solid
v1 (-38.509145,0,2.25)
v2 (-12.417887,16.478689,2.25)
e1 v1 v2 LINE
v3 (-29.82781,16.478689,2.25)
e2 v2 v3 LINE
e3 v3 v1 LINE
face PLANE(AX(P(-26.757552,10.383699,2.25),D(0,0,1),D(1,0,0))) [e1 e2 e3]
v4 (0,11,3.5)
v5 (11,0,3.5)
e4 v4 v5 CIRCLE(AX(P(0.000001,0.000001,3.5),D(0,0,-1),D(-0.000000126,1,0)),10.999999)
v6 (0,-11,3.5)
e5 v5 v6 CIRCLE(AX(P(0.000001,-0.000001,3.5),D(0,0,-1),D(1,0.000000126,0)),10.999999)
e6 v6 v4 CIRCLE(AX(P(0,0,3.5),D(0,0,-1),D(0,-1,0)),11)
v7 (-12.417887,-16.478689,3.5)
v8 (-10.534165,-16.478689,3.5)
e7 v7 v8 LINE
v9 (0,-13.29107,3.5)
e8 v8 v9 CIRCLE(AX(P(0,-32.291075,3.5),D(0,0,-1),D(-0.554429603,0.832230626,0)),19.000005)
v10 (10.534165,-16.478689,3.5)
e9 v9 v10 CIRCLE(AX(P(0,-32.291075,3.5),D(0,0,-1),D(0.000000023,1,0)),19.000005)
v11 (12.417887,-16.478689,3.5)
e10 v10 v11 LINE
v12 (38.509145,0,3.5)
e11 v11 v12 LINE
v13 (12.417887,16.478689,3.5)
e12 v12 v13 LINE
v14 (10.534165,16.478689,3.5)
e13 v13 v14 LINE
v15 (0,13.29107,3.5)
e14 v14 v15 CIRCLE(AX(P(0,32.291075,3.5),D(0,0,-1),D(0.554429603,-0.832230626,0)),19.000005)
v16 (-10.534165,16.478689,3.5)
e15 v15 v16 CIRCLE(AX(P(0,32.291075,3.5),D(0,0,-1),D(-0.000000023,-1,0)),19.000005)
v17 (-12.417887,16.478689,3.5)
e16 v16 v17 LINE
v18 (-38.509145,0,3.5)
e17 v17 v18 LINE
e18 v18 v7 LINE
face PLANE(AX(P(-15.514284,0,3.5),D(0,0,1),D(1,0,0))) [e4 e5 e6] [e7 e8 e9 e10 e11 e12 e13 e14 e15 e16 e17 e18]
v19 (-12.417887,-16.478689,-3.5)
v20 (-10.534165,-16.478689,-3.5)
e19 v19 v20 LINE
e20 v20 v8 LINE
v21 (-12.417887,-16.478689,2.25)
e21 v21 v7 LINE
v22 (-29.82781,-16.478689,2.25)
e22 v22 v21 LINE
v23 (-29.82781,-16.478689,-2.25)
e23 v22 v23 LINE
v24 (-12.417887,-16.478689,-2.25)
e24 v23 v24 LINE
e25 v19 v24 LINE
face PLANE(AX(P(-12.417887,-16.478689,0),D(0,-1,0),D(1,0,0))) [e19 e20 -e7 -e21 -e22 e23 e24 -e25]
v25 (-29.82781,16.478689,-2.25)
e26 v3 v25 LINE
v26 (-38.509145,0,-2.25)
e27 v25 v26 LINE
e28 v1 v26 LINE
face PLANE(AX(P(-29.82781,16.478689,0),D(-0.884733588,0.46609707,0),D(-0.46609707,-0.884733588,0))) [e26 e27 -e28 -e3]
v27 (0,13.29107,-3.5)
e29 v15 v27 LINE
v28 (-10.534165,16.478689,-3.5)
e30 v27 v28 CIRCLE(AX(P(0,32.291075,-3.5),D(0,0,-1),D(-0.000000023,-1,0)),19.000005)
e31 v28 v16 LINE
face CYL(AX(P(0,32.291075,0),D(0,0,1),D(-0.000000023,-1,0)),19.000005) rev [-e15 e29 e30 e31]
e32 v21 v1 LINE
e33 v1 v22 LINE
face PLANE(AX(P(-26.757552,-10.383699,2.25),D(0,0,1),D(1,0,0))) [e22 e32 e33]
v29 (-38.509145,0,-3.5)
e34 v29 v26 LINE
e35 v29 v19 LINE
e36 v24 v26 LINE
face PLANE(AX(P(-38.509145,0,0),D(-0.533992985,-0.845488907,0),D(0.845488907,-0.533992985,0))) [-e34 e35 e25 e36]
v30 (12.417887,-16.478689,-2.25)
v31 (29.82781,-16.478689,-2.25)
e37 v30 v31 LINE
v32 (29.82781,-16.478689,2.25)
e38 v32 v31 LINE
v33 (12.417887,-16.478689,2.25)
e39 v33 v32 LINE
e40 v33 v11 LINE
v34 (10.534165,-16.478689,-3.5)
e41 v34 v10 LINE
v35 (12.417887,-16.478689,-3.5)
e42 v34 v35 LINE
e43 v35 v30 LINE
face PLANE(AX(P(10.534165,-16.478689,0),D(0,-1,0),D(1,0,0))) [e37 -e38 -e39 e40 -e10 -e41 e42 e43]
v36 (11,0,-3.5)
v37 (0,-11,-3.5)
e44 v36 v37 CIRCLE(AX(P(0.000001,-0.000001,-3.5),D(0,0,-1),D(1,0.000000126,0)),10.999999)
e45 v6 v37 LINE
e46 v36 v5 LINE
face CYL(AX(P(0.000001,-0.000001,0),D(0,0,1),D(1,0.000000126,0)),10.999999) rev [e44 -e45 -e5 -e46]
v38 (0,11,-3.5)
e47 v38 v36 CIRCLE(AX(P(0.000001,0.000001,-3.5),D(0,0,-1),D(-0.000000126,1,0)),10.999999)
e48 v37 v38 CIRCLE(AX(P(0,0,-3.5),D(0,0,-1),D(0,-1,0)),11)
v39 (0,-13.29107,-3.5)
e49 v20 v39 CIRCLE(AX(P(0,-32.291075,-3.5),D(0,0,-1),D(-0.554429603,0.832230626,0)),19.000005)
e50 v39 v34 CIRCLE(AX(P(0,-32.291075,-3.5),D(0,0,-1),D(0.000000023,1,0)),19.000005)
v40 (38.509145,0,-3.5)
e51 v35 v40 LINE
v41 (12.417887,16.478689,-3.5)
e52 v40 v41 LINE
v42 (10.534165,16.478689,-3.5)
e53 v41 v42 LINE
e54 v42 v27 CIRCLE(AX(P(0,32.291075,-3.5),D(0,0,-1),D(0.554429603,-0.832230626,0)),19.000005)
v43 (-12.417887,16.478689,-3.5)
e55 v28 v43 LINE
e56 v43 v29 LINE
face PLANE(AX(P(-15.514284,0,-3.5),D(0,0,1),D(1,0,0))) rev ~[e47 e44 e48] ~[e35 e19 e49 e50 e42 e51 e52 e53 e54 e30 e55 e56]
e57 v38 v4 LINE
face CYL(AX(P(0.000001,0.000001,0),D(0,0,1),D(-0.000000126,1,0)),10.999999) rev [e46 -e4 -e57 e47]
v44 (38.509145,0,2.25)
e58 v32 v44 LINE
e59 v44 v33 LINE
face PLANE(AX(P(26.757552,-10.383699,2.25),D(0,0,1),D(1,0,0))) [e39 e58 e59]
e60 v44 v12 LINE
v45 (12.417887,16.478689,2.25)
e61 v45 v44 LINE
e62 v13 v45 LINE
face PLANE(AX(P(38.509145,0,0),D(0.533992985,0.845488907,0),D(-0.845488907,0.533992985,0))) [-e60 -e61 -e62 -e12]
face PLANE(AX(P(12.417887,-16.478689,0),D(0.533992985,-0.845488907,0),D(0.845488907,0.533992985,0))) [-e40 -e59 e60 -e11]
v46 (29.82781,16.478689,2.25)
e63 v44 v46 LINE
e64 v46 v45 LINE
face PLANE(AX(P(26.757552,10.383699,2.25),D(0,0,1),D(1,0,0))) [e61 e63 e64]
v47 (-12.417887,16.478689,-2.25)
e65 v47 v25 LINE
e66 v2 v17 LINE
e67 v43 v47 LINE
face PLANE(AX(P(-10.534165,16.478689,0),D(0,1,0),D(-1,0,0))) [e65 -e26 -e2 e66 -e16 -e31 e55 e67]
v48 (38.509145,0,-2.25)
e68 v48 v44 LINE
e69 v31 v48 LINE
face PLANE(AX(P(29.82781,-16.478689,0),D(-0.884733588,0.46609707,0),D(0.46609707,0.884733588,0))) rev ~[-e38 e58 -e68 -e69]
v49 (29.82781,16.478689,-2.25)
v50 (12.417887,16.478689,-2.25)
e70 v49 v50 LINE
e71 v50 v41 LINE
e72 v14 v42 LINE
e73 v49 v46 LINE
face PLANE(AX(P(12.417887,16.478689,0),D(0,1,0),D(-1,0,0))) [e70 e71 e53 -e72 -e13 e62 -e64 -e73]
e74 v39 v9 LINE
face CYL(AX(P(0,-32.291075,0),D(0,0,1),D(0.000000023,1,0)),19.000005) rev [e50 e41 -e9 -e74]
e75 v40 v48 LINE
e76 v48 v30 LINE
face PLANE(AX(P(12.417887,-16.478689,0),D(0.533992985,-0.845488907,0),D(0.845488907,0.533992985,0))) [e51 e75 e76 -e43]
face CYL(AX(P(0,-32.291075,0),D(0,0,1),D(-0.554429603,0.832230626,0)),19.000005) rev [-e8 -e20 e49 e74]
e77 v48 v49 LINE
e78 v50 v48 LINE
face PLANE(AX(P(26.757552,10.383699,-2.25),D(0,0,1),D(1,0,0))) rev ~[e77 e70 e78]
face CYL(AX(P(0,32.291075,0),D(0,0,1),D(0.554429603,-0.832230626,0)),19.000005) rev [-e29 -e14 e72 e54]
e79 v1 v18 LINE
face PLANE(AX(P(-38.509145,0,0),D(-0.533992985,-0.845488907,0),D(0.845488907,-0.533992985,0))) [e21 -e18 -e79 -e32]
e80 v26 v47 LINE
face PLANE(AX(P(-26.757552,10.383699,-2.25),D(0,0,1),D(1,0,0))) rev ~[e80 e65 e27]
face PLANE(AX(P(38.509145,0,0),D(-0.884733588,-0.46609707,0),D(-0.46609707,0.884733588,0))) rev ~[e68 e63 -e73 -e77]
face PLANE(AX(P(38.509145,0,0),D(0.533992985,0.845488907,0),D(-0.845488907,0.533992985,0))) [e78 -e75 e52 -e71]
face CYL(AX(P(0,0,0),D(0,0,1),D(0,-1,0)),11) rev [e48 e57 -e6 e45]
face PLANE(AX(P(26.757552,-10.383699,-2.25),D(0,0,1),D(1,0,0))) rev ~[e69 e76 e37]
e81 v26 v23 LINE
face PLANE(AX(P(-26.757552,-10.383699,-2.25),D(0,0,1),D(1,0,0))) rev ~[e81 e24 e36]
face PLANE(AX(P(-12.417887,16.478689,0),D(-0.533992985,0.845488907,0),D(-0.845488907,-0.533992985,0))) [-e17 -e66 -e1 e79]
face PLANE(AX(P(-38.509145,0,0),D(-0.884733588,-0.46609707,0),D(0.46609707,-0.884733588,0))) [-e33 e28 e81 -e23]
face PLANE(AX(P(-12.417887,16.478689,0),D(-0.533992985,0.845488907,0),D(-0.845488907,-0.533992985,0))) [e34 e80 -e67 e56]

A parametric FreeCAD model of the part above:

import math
import FreeCAD as App
import Part
import Sketcher
Q = App.Units.Quantity


def add_polygon(sketch, points):
    """Adds a closed chain of lines whose ends are joined by coincident constraints."""
    first, n = sketch.GeometryCount, len(points)
    for a, b in zip(points, points[1:] + points[:1]):
        sketch.addGeometry(Part.LineSegment(App.Vector(*a, 0), App.Vector(*b, 0)), False)
    for i in range(n):
        sketch.addConstraint(Sketcher.Constraint("Coincident", first + i, 2, first + (i + 1) % n, 1))

doc = App.newDocument("Part")
params = doc.addObject("Spreadsheet::Sheet", "Params")
for row, (alias, value) in enumerate([
    ("sketch1_radius", "11 mm"),
    ("pad1_length", "7 mm"),
    ("pad2_length", "4.5 mm"),
], start=1):
    params.set(f"A{row}", alias)
    params.set(f"B{row}", "=" + value)
    params.setAlias(f"B{row}", alias)

body = doc.addObject("PartDesign::Body", "Body")

sketch1 = doc.addObject("Sketcher::SketchObject", "Sketch")
body.addObject(sketch1)
sketch1.AttachmentSupport = (doc.XY_Plane, [""])
sketch1.MapMode = "FlatFace"
sketch1.addGeometry([
    Part.ArcOfCircle(Part.Circle(App.Vector(0, 32.3, 0), App.Vector(0, 0, 1), 19), math.radians(-124), math.radians(-90)),
    Part.LineSegment(App.Vector(-10.5, 16.5, 0), App.Vector(-12.4, 16.5, 0)),
    Part.LineSegment(App.Vector(-12.4, 16.5, 0), App.Vector(-38.5, 0, 0)),
    Part.LineSegment(App.Vector(-38.5, 0, 0), App.Vector(-12.4, -16.5, 0)),
    Part.LineSegment(App.Vector(-12.4, -16.5, 0), App.Vector(-10.5, -16.5, 0)),
    Part.ArcOfCircle(Part.Circle(App.Vector(0, -32.3, 0), App.Vector(0, 0, 1), 19), math.radians(90), math.radians(124)),
    Part.ArcOfCircle(Part.Circle(App.Vector(0, -32.3, 0), App.Vector(0, 0, 1), 19), math.radians(56), math.radians(90)),
    Part.LineSegment(App.Vector(10.5, -16.5, 0), App.Vector(12.4, -16.5, 0)),
    Part.LineSegment(App.Vector(12.4, -16.5, 0), App.Vector(38.5, 0, 0)),
    Part.LineSegment(App.Vector(38.5, 0, 0), App.Vector(12.4, 16.5, 0)),
    Part.LineSegment(App.Vector(12.4, 16.5, 0), App.Vector(10.5, 16.5, 0)),
    Part.ArcOfCircle(Part.Circle(App.Vector(0, 32.3, 0), App.Vector(0, 0, 1), 19), math.radians(-90), math.radians(-56)),
    Part.ArcOfCircle(Part.Circle(App.Vector(0, 0, 0), App.Vector(0, 0, 1), 11), math.radians(90), math.radians(270)),
    Part.ArcOfCircle(Part.Circle(App.Vector(0, 0, 0), App.Vector(0, 0, 1), 11), math.radians(0), math.radians(90)),
    Part.ArcOfCircle(Part.Circle(App.Vector(0, 0, 0), App.Vector(0, 0, 1), 11), math.radians(-90), math.radians(0)),
], False)
sketch1.addConstraint([
    Sketcher.Constraint("Coincident", 0, 1, 1, 1),
    Sketcher.Constraint("Coincident", 1, 2, 2, 1),
    Sketcher.Constraint("Coincident", 2, 2, 3, 1),
    Sketcher.Constraint("Coincident", 3, 2, 4, 1),
    Sketcher.Constraint("Coincident", 4, 2, 5, 2),
    Sketcher.Constraint("Tangent", 5, 1, 6, 2),
    Sketcher.Constraint("Coincident", 6, 1, 7, 1),
    Sketcher.Constraint("Coincident", 7, 2, 8, 1),
    Sketcher.Constraint("Coincident", 8, 2, 9, 1),
    Sketcher.Constraint("Coincident", 9, 2, 10, 1),
    Sketcher.Constraint("Coincident", 10, 2, 11, 2),
    Sketcher.Constraint("Tangent", 11, 1, 0, 2),
    Sketcher.Constraint("Tangent", 12, 1, 13, 2),
    Sketcher.Constraint("Tangent", 13, 1, 14, 2),
    Sketcher.Constraint("Tangent", 14, 1, 12, 2),
    Sketcher.Constraint("Horizontal", 1),
    Sketcher.Constraint("Horizontal", 4),
    Sketcher.Constraint("Horizontal", 7),
    Sketcher.Constraint("Horizontal", 10),
    Sketcher.Constraint("Coincident", 12, 3, -1, 1),
    Sketcher.Constraint("Equal", 0, 5),
    Sketcher.Constraint("Equal", 5, 6),
    Sketcher.Constraint("Equal", 6, 11),
    Sketcher.Constraint("Symmetric", 0, 3, 5, 3, -1, 1),
    Sketcher.Constraint("Symmetric", 1, 2, 7, 2, -1, 1),
    Sketcher.Constraint("Symmetric", 2, 2, 8, 2, -1, 1),
    Sketcher.Constraint("Symmetric", 3, 2, 9, 2, -1, 1),
    Sketcher.Constraint("Symmetric", 4, 2, 6, 1, -2),
    Sketcher.Constraint("PointOnObject", 2, 2, -1),
    Sketcher.Constraint("PointOnObject", 5, 1, -2),
    Sketcher.Constraint("PointOnObject", 11, 1, -2),
    Sketcher.Constraint("PointOnObject", 12, 1, -2),
    Sketcher.Constraint("PointOnObject", 13, 1, -1),
    Sketcher.Constraint("PointOnObject", 14, 1, -2),
    Sketcher.Constraint("Vertical", 1, 2, 3, 2),
    Sketcher.Constraint("Radius", 12, Q("11 mm")),
    Sketcher.Constraint("Radius", 0, Q("19.000005 mm")),
    Sketcher.Constraint("DistanceX", 1, 2, 1, 1, Q("1.883722 mm")),
    Sketcher.Constraint("DistanceY", -1, 1, 0, 1, Q("16.478689 mm")),
    Sketcher.Constraint("DistanceY", 5, 1, -1, 1, Q("13.29107 mm")),
    Sketcher.Constraint("DistanceX", 2, 2, 0, 1, Q("27.97498 mm")),
])
sketch1.setExpression("Constraints[35]", "Params.sketch1_radius")
pad1 = doc.addObject("PartDesign::Pad", "Pad")
body.addObject(pad1)
pad1.Profile = sketch1
pad1.setExpression("Length", "Params.pad1_length")
pad1.Midplane = True

sketch2 = doc.addObject("Sketcher::SketchObject", "Sketch001")
body.addObject(sketch2)
sketch2.AttachmentSupport = (doc.XY_Plane, [""])
sketch2.MapMode = "FlatFace"
add_polygon(sketch2, [(30, -16), (39, 0), (12, -16)])
add_polygon(sketch2, [(39, 0), (30, 16), (12, 16)])
add_polygon(sketch2, [(-12, -16), (-39, 0), (-30, -16)])
add_polygon(sketch2, [(-39, 0), (-12, 16), (-30, 16)])
sketch2.addConstraint([
    Sketcher.Constraint("Horizontal", 2),
    Sketcher.Constraint("Horizontal", 4),
    Sketcher.Constraint("Horizontal", 8),
    Sketcher.Constraint("Horizontal", 10),
    Sketcher.Constraint("Coincident", 5, 2, 0, 2),
    Sketcher.Constraint("Coincident", 11, 2, 6, 2),
    Sketcher.Constraint("Symmetric", 0, 2, 6, 2, -1, 1),
    Sketcher.Constraint("Symmetric", 3, 2, 7, 2, -1, 1),
    Sketcher.Constraint("Symmetric", 1, 2, 9, 2, -1, 1),
    Sketcher.Constraint("Symmetric", 2, 2, 7, 2, -2),
    Sketcher.Constraint("PointOnObject", 0, 2, -1),
    Sketcher.Constraint("Parallel", 5, 6),
    Sketcher.Constraint("Parallel", 0, 11),
    Sketcher.Constraint("Vertical", 1, 2, 4, 2),
    Sketcher.Constraint("DistanceX", 2, 1, 2, 2, Q("17.409923 mm")),
    Sketcher.Constraint("DistanceY", 1, 2, -1, 1, Q("16.478689 mm")),
    Sketcher.Constraint("DistanceX", -1, 1, 2, 2, Q("29.82781 mm")),
    Sketcher.Constraint("DistanceX", 6, 2, 1, 2, Q("50.927032 mm")),
])
pad2 = doc.addObject("PartDesign::Pad", "Pad001")
body.addObject(pad2)
pad2.Profile = sketch2
pad2.setExpression("Length", "Params.pad2_length")
pad2.Midplane = True

doc.recompute()
